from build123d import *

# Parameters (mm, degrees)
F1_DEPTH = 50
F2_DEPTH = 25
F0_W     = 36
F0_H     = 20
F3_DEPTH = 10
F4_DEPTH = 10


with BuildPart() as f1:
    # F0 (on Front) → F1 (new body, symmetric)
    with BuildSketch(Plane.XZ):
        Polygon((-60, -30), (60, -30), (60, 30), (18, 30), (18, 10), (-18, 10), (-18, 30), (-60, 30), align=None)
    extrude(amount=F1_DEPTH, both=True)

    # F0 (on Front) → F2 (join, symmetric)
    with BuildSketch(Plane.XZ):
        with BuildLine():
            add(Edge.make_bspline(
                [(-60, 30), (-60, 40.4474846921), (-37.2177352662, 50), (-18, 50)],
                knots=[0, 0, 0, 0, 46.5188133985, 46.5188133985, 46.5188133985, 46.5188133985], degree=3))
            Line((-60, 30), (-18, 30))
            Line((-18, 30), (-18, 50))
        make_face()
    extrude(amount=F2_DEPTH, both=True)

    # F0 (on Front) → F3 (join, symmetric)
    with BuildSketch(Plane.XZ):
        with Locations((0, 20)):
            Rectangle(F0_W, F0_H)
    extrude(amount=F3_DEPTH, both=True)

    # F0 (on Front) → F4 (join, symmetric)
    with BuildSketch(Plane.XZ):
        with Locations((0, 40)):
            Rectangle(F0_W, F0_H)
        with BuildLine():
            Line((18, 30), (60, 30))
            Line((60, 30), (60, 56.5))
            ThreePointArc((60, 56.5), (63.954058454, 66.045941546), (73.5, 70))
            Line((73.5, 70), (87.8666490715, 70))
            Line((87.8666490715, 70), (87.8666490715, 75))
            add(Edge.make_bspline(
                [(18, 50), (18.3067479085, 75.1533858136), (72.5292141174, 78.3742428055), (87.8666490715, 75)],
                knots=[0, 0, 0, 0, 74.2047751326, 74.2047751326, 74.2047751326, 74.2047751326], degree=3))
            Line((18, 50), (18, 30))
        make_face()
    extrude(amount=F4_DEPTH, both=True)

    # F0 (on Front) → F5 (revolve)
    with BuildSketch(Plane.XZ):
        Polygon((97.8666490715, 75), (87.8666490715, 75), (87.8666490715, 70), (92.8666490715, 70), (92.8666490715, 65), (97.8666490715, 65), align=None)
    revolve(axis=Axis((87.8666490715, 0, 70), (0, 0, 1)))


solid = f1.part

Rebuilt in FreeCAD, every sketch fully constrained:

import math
import FreeCAD as App
import Part
import Sketcher

V = App.Vector
Q = App.Units.Quantity


def add_polygon(sketch, points):
    """Adds a closed chain of lines whose ends are joined by coincident constraints."""
    first, n = sketch.GeometryCount, len(points)
    for a, b in zip(points, points[1:] + points[:1]):
        sketch.addGeometry(Part.LineSegment(App.Vector(*a, 0), App.Vector(*b, 0)), False)
    for i in range(n):
        sketch.addConstraint(Sketcher.Constraint("Coincident", first + i, 2, first + (i + 1) % n, 1))

doc = App.newDocument("Part")
body = doc.addObject("PartDesign::Body", "Body")

sketch1 = doc.addObject("Sketcher::SketchObject", "Sketch")
body.addObject(sketch1)
sketch1.AttachmentSupport = (doc.XZ_Plane, [""])
sketch1.MapMode = "FlatFace"
add_polygon(sketch1, [(-60, -30), (60, -30), (60, 30), (18, 30), (18, 10), (-18, 10), (-18, 30), (-60, 30)])
sketch1.addConstraint(Sketcher.Constraint("Horizontal", 0))
sketch1.addConstraint(Sketcher.Constraint("Vertical", 1))
sketch1.addConstraint(Sketcher.Constraint("Horizontal", 2))
sketch1.addConstraint(Sketcher.Constraint("Vertical", 3))
sketch1.addConstraint(Sketcher.Constraint("Horizontal", 4))
sketch1.addConstraint(Sketcher.Constraint("Vertical", 5))
sketch1.addConstraint(Sketcher.Constraint("Horizontal", 6))
sketch1.addConstraint(Sketcher.Constraint("Vertical", 7))
sketch1.addConstraint(Sketcher.Constraint("Symmetric", 0, 2, 6, 2, -1, 1))
sketch1.addConstraint(Sketcher.Constraint("Symmetric", 2, 2, 5, 2, -2))
sketch1.addConstraint(Sketcher.Constraint("DistanceX", 0, 1, 0, 2, Q("120 mm")))
sketch1.addConstraint(Sketcher.Constraint("DistanceX", 2, 2, 2, 1, Q("42 mm")))
sketch1.addConstraint(Sketcher.Constraint("DistanceY", 1, 1, 1, 2, Q("60 mm")))
sketch1.addConstraint(Sketcher.Constraint("DistanceY", 3, 2, 3, 1, Q("20 mm")))
pad1 = doc.addObject("PartDesign::Pad", "Pad")
body.addObject(pad1)
pad1.Profile = sketch1
pad1.Length = 100
pad1.Midplane = True

sketch2 = doc.addObject("Sketcher::SketchObject", "Sketch001")
body.addObject(sketch2)
sketch2.AttachmentSupport = (doc.XZ_Plane, [""])
sketch2.MapMode = "FlatFace"
sketch2.addGeometry(Part.BSplineCurve([V(-60, 30, 0), V(-60, 40.447485, 0), V(-37.217735, 50, 0), V(-18, 50, 0)], [4, 4], [0, 46.518813399], False, 3, [1, 1, 1, 1], False), False)
sketch2.addGeometry(Part.LineSegment(V(-60, 30, 0), V(-18, 30, 0)), False)
sketch2.addGeometry(Part.LineSegment(V(-18, 30, 0), V(-18, 50, 0)), False)
sketch2.addConstraint(Sketcher.Constraint("Block", 0))
sketch2.addConstraint(Sketcher.Constraint("Coincident", 0, 1, 1, 1))
sketch2.addConstraint(Sketcher.Constraint("Coincident", 1, 2, 2, 1))
sketch2.addConstraint(Sketcher.Constraint("Coincident", 2, 2, 0, 2))
sketch2.addConstraint(Sketcher.Constraint("Horizontal", 1))
sketch2.addConstraint(Sketcher.Constraint("Vertical", 2))
pad2 = doc.addObject("PartDesign::Pad", "Pad001")
body.addObject(pad2)
pad2.Profile = sketch2
pad2.Length = 50
pad2.Midplane = True

sketch3 = doc.addObject("Sketcher::SketchObject", "Sketch002")
body.addObject(sketch3)
sketch3.AttachmentSupport = (doc.XZ_Plane, [""])
sketch3.MapMode = "FlatFace"
add_polygon(sketch3, [(-18, 30), (-18, 10), (18, 10), (18, 30)])
sketch3.addConstraint(Sketcher.Constraint("Vertical", 0))
sketch3.addConstraint(Sketcher.Constraint("Horizontal", 1))
sketch3.addConstraint(Sketcher.Constraint("Vertical", 2))
sketch3.addConstraint(Sketcher.Constraint("Horizontal", 3))
sketch3.addConstraint(Sketcher.Constraint("DistanceX", 1, 1, 1, 2, Q("36 mm")))
sketch3.addConstraint(Sketcher.Constraint("DistanceY", 0, 2, 0, 1, Q("20 mm")))
sketch3.addConstraint(Sketcher.Constraint("DistanceX", 0, 2, -1, 1, Q("18 mm")))
sketch3.addConstraint(Sketcher.Constraint("DistanceY", -1, 1, 0, 2, Q("10 mm")))
pad3 = doc.addObject("PartDesign::Pad", "Pad002")
body.addObject(pad3)
pad3.Profile = sketch3
pad3.Length = 20
pad3.Midplane = True

sketch4 = doc.addObject("Sketcher::SketchObject", "Sketch003")
body.addObject(sketch4)
sketch4.AttachmentSupport = (doc.XZ_Plane, [""])
sketch4.MapMode = "FlatFace"
sketch4.addGeometry(Part.LineSegment(V(-18, 50, 0), V(-18, 30, 0)), False)
sketch4.addGeometry(Part.LineSegment(V(-18, 30, 0), V(60, 30, 0)), False)
sketch4.addGeometry(Part.LineSegment(V(60, 30, 0), V(60, 56.5, 0)), False)
sketch4.addGeometry(Part.ArcOfCircle(Part.Circle(V(73.5, 56.5, 0), V(0, 0, 1), 13.5), math.radians(90), math.radians(180)), False)
sketch4.addGeometry(Part.LineSegment(V(73.5, 70, 0), V(87.866649, 70, 0)), False)
sketch4.addGeometry(Part.LineSegment(V(87.866649, 70, 0), V(87.866649, 75, 0)), False)
sketch4.addGeometry(Part.BSplineCurve([V(18, 50, 0), V(18.306748, 75.153386, 0), V(72.529214, 78.374243, 0), V(87.866649, 75, 0)], [4, 4], [0, 74.204775133], False, 3, [1, 1, 1, 1], False), False)
sketch4.addGeometry(Part.LineSegment(V(18, 50, 0), V(-18, 50, 0)), False)
sketch4.addConstraint(Sketcher.Constraint("Block", 6))
sketch4.addConstraint(Sketcher.Constraint("Coincident", 0, 2, 1, 1))
sketch4.addConstraint(Sketcher.Constraint("Coincident", 1, 2, 2, 1))
sketch4.addConstraint(Sketcher.Constraint("Tangent", 2, 2, 3, 2))
sketch4.addConstraint(Sketcher.Constraint("Tangent", 3, 1, 4, 1))
sketch4.addConstraint(Sketcher.Constraint("Coincident", 4, 2, 5, 1))
sketch4.addConstraint(Sketcher.Constraint("Coincident", 5, 2, 6, 2))
sketch4.addConstraint(Sketcher.Constraint("Coincident", 6, 1, 7, 1))
sketch4.addConstraint(Sketcher.Constraint("Coincident", 7, 2, 0, 1))
sketch4.addConstraint(Sketcher.Constraint("Vertical", 0))
sketch4.addConstraint(Sketcher.Constraint("Horizontal", 1))
sketch4.addConstraint(Sketcher.Constraint("Vertical", 2))
sketch4.addConstraint(Sketcher.Constraint("Horizontal", 4))
sketch4.addConstraint(Sketcher.Constraint("Vertical", 5))
sketch4.addConstraint(Sketcher.Constraint("Horizontal", 7))
sketch4.addConstraint(Sketcher.Constraint("Radius", 3, Q("13.5 mm")))
sketch4.addConstraint(Sketcher.Constraint("DistanceX", 1, 1, 1, 2, Q("78 mm")))
sketch4.addConstraint(Sketcher.Constraint("DistanceX", 7, 2, 7, 1, Q("36 mm")))
sketch4.addConstraint(Sketcher.Constraint("DistanceY", 0, 2, 0, 1, Q("20 mm")))
sketch4.addConstraint(Sketcher.Constraint("DistanceY", 5, 1, 5, 2, Q("5 mm")))
pad4 = doc.addObject("PartDesign::Pad", "Pad003")
body.addObject(pad4)
pad4.Profile = sketch4
pad4.Length = 20
pad4.Midplane = True

sketch5 = doc.addObject("Sketcher::SketchObject", "Sketch004")
body.addObject(sketch5)
sketch5.AttachmentSupport = (doc.XZ_Plane, [""])
sketch5.MapMode = "FlatFace"
add_polygon(sketch5, [(98, 75), (88, 75), (88, 70), (93, 70), (93, 65), (98, 65)])
sketch5.addGeometry(Part.LineSegment(V(88, 65, 0), V(88, 75, 0)), True)
sketch5.addConstraint(Sketcher.Constraint("Horizontal", 0))
sketch5.addConstraint(Sketcher.Constraint("Vertical", 1))
sketch5.addConstraint(Sketcher.Constraint("Horizontal", 2))
sketch5.addConstraint(Sketcher.Constraint("Vertical", 3))
sketch5.addConstraint(Sketcher.Constraint("Horizontal", 4))
sketch5.addConstraint(Sketcher.Constraint("Vertical", 5))
sketch5.addConstraint(Sketcher.Constraint("Vertical", 6))
sketch5.addConstraint(Sketcher.Constraint("Coincident", 6, 2, 0, 2))
sketch5.addConstraint(Sketcher.Constraint("Horizontal", 4, 2, 6, 1))
sketch5.addConstraint(Sketcher.Constraint("Equal", 2, 4))
sketch5.addConstraint(Sketcher.Constraint("Equal", 4, 1))
sketch5.addConstraint(Sketcher.Constraint("Equal", 1, 3))
sketch5.addConstraint(Sketcher.Constraint("DistanceX", 0, 2, 0, 1, Q("10 mm")))
sketch5.addConstraint(Sketcher.Constraint("DistanceY", -1, 1, 0, 2, Q("75 mm")))
sketch5.addConstraint(Sketcher.Constraint("DistanceX", -1, 1, 0, 2, Q("87.866649 mm")))
revolution = doc.addObject("PartDesign::Revolution", "Revolution")
body.addObject(revolution)
revolution.Profile = sketch5
revolution.ReferenceAxis = (sketch5, ["Axis0"])
revolution.Angle = 360

doc.recompute()
